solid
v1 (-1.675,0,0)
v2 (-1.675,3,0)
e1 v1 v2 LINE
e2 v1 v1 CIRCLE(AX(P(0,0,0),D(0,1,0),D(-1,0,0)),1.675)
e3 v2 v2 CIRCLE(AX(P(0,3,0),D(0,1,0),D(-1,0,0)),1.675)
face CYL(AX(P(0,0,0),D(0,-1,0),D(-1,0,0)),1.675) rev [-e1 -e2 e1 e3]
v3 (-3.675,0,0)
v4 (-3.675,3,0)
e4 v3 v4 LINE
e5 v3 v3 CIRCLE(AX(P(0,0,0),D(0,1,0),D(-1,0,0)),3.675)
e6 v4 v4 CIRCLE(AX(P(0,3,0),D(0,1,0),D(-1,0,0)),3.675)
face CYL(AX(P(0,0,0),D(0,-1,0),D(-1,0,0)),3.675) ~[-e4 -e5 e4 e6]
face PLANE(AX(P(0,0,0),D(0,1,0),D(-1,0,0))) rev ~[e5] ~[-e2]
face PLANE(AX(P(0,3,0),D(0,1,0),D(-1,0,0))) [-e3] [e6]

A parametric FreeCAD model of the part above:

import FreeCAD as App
import Part
import Sketcher

doc = App.newDocument("Part")
body = doc.addObject("PartDesign::Body", "Body")

sketch1 = doc.addObject("Sketcher::SketchObject", "Sketch")
body.addObject(sketch1)
sketch1.AttachmentSupport = (doc.XZ_Plane, [""])
sketch1.MapMode = "FlatFace"
sketch1.addGeometry([
    Part.Circle(App.Vector(0, 0, 0), App.Vector(0, 0, 1), 3.675),
    Part.Circle(App.Vector(0, 0, 0), App.Vector(0, 0, 1), 1.675),
], False)
sketch1.addConstraint([
    Sketcher.Constraint("Coincident", 0, 3, -1, 1),
    Sketcher.Constraint("Coincident", 1, 3, -1, 1),
    Sketcher.Constraint("Diameter", 0, 7.35),
    Sketcher.Constraint("Diameter", 1, 3.35),
])
pad1 = doc.addObject("PartDesign::Pad", "Pad")
body.addObject(pad1)
pad1.Profile = sketch1
pad1.Length = 3
pad1.Reversed = True

doc.recompute()
